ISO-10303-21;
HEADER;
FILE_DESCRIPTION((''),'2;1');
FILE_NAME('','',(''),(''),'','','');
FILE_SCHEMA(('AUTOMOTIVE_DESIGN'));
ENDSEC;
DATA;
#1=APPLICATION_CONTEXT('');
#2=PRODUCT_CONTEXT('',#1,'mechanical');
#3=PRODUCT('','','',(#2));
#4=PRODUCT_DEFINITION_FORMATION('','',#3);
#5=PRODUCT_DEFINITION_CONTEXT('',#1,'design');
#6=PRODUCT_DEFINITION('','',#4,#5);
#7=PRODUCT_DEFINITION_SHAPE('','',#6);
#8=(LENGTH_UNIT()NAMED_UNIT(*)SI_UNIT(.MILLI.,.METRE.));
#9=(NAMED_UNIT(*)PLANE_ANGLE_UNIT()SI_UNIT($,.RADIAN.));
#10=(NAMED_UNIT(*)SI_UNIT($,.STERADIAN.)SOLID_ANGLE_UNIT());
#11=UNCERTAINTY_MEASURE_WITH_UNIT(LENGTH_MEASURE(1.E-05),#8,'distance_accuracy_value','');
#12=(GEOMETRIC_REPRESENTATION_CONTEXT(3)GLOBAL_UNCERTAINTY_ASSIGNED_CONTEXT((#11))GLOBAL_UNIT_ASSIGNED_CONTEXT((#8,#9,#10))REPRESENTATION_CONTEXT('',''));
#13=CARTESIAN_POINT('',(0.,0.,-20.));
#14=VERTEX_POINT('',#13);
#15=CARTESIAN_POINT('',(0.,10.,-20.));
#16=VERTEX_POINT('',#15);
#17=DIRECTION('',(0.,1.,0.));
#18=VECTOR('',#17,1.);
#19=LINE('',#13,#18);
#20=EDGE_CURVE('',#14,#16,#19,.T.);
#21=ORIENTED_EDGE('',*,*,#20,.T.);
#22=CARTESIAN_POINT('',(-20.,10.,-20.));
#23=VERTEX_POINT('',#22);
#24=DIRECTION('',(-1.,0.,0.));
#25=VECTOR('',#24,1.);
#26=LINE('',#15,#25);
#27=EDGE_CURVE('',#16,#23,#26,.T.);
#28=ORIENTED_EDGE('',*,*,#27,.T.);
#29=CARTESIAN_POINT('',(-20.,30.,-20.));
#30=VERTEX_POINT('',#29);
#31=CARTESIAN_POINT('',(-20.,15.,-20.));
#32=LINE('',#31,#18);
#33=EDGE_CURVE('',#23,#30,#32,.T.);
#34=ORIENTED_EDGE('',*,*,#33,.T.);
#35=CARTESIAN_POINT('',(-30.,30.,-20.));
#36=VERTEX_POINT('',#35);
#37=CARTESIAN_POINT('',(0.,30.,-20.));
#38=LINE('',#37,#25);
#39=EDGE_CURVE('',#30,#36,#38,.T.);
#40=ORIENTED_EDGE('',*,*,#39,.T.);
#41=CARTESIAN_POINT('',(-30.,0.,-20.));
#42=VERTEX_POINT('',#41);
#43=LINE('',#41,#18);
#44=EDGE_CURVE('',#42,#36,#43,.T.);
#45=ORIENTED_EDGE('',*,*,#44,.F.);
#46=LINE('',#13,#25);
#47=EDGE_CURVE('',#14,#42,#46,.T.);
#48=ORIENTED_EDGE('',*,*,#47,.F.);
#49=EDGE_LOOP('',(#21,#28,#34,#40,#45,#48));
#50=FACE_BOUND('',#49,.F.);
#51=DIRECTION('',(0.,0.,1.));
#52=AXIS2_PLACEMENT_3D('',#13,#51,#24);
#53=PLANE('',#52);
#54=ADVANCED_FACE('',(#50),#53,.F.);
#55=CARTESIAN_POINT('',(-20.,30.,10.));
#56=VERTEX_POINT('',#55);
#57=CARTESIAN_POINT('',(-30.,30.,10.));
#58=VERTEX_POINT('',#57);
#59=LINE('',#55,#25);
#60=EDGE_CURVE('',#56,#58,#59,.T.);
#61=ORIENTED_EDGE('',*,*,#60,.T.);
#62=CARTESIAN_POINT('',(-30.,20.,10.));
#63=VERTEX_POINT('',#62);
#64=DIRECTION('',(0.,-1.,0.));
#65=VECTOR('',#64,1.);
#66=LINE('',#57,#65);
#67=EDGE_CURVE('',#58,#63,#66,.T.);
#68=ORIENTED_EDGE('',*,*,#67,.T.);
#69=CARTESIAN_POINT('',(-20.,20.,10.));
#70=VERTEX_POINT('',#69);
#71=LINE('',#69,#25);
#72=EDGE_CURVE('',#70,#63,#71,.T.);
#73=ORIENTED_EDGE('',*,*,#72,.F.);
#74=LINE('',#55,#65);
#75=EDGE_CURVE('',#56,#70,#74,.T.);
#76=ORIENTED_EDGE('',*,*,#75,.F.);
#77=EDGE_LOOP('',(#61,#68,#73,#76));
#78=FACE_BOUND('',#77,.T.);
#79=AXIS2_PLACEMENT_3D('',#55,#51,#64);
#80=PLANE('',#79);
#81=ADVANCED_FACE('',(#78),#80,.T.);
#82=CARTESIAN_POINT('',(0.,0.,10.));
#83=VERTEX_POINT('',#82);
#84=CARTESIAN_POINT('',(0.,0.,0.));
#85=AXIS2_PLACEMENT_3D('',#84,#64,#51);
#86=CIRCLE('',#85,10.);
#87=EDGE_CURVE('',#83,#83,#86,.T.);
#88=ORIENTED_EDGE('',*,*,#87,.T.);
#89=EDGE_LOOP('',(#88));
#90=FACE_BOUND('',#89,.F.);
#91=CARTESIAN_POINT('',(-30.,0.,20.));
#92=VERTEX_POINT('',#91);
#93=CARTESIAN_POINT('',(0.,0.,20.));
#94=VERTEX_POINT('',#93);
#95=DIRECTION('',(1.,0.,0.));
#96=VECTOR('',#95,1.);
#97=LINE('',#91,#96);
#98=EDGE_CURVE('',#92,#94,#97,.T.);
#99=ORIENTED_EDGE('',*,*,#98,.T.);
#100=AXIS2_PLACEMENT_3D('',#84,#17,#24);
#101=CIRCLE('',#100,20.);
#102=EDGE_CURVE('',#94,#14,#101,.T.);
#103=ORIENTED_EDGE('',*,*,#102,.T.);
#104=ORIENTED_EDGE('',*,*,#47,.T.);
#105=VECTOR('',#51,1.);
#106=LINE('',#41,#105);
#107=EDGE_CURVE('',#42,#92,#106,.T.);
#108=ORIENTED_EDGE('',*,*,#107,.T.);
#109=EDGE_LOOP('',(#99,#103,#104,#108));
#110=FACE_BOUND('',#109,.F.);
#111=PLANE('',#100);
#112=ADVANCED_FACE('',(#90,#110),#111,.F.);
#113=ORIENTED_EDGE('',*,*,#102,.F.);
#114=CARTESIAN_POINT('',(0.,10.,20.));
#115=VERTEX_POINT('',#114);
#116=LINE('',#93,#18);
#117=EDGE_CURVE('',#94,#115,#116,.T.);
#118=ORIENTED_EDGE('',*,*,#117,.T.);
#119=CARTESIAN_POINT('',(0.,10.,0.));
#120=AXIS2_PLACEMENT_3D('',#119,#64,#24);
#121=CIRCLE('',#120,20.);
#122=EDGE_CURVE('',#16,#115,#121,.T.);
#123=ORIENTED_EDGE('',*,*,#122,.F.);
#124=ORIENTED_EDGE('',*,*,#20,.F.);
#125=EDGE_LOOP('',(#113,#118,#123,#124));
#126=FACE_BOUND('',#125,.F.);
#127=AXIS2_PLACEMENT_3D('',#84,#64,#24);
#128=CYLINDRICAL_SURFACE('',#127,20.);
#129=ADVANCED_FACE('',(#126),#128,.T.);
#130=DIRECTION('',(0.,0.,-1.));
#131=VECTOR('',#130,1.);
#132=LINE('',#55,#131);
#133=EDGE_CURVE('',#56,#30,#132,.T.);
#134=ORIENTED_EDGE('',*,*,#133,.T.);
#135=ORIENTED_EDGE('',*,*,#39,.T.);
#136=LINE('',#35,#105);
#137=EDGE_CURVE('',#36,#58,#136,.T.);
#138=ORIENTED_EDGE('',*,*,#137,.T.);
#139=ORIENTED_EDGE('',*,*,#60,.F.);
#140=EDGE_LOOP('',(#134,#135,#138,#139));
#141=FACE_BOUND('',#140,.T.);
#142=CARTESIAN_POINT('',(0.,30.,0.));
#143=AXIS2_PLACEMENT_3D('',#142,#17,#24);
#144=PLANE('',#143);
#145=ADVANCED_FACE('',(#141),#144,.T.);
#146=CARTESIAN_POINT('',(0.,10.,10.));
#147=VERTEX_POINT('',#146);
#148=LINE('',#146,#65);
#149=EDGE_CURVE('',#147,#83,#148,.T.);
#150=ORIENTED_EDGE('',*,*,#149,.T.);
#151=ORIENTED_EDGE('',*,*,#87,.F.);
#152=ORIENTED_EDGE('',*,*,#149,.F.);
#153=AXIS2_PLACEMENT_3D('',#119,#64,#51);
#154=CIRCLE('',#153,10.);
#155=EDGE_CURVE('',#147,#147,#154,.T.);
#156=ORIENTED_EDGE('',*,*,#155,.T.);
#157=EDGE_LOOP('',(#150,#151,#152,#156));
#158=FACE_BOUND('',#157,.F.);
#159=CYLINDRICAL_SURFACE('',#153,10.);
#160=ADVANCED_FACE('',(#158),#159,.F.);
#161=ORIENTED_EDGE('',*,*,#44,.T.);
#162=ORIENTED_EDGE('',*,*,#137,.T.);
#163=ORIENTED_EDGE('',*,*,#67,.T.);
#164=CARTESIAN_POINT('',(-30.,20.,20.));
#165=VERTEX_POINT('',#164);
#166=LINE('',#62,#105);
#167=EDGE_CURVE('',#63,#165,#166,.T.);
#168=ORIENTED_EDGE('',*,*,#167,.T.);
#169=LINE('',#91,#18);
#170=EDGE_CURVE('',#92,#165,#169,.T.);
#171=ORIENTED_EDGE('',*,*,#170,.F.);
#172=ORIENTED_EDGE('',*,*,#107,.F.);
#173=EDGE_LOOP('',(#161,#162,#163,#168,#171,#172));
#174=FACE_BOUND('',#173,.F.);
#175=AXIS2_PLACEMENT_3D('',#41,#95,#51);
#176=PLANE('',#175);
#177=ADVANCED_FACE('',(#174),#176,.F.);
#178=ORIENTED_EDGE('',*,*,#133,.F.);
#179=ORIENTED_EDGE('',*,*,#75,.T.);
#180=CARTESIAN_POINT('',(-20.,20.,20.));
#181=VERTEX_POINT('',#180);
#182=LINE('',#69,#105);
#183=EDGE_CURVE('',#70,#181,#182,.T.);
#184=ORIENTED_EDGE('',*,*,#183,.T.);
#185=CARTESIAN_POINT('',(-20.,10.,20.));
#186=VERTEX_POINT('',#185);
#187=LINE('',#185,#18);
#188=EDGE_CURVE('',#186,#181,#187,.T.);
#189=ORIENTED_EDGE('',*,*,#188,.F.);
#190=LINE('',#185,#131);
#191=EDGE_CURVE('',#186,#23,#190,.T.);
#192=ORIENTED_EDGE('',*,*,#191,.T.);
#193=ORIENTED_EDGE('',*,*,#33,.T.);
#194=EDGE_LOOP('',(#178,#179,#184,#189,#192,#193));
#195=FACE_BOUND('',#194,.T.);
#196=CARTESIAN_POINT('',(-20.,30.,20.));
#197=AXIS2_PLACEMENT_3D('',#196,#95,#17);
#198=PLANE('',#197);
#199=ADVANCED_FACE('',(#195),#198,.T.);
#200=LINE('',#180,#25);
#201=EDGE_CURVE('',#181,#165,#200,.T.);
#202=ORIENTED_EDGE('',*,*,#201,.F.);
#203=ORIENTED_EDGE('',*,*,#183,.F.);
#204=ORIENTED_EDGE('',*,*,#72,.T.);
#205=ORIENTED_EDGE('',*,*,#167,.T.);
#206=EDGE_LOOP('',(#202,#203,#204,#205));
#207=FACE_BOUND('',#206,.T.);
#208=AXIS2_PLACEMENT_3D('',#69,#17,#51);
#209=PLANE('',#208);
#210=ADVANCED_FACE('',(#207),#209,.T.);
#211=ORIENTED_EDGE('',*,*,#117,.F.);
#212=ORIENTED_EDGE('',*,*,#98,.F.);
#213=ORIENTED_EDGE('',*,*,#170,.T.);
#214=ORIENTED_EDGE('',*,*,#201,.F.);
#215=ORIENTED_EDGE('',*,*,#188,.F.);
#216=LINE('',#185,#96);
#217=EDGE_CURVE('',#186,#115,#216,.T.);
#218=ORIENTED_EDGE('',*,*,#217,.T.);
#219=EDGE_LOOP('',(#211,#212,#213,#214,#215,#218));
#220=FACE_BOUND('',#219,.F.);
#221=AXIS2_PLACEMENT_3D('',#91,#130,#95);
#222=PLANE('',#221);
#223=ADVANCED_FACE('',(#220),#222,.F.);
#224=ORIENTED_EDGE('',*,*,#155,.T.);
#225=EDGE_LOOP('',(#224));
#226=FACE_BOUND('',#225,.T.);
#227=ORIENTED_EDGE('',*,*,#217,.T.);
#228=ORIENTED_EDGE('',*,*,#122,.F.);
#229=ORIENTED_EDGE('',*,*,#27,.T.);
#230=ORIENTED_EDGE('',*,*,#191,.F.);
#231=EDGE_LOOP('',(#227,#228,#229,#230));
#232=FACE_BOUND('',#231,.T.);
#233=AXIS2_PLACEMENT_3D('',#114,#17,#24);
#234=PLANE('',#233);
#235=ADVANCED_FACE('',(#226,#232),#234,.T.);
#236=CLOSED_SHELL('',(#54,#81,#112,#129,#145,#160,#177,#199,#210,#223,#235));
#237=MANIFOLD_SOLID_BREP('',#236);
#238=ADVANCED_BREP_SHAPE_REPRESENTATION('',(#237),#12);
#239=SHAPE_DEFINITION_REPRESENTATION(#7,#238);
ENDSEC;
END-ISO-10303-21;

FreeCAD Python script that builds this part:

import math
import FreeCAD as App
import Part
import Sketcher
Q = App.Units.Quantity


def add_polygon(sketch, points):
    """Adds a closed chain of lines whose ends are joined by coincident constraints."""
    first, n = sketch.GeometryCount, len(points)
    for a, b in zip(points, points[1:] + points[:1]):
        sketch.addGeometry(Part.LineSegment(App.Vector(*a, 0), App.Vector(*b, 0)), False)
    for i in range(n):
        sketch.addConstraint(Sketcher.Constraint("Coincident", first + i, 2, first + (i + 1) % n, 1))

doc = App.newDocument("Part")
body = doc.addObject("PartDesign::Body", "Body")

sketch1 = body.newObject("Sketcher::SketchObject", "Sketch")
sketch1.AttachmentSupport = (doc.getObject("XZ_Plane"), [""])
sketch1.MapMode = "FlatFace"
sketch1.addGeometry(Part.LineSegment(App.Vector(0, -20, 0), App.Vector(-30, -20, 0)), False)
sketch1.addGeometry(Part.LineSegment(App.Vector(-30, -20, 0), App.Vector(-30, 20, 0)), False)
sketch1.addGeometry(Part.LineSegment(App.Vector(-30, 20, 0), App.Vector(0, 20, 0)), False)
sketch1.addGeometry(Part.ArcOfCircle(Part.Circle(App.Vector(0, 0, 0), App.Vector(0, 0, 1), 20), math.radians(-90), math.radians(90)), False)
sketch1.addConstraint(Sketcher.Constraint("Coincident", 0, 2, 1, 1))
sketch1.addConstraint(Sketcher.Constraint("Coincident", 1, 2, 2, 1))
sketch1.addConstraint(Sketcher.Constraint("Tangent", 2, 2, 3, 2))
sketch1.addConstraint(Sketcher.Constraint("Tangent", 3, 1, 0, 1))
sketch1.addConstraint(Sketcher.Constraint("Horizontal", 0))
sketch1.addConstraint(Sketcher.Constraint("Vertical", 1))
sketch1.addConstraint(Sketcher.Constraint("Horizontal", 2))
sketch1.addConstraint(Sketcher.Constraint("Coincident", 3, 3, -1, 1))
sketch1.addConstraint(Sketcher.Constraint("Radius", 3, Q("20 mm")))
sketch1.addConstraint(Sketcher.Constraint("DistanceX", 0, 2, 0, 1, Q("30 mm")))
pad1 = body.newObject("PartDesign::Pad", "Pad")
pad1.Profile = sketch1
pad1.Length = 30
pad1.Reversed = True

sketch2 = body.newObject("Sketcher::SketchObject", "Sketch001")
sketch2.AttachmentSupport = (doc.getObject("XY_Plane"), [""])
sketch2.MapMode = "FlatFace"
sketch2.AttachmentOffset = App.Placement(App.Vector(0, 0, 20), App.Rotation())
add_polygon(sketch2, [(-20, 37.5679), (-20, 10), (36.1175, 10), (36.1175, 37.5679)])
sketch2.addConstraint(Sketcher.Constraint("Vertical", 0))
sketch2.addConstraint(Sketcher.Constraint("Horizontal", 1))
sketch2.addConstraint(Sketcher.Constraint("Vertical", 2))
sketch2.addConstraint(Sketcher.Constraint("Horizontal", 3))
sketch2.addConstraint(Sketcher.Constraint("DistanceY", -1, 1, 0, 2, Q("10 mm")))
sketch2.addConstraint(Sketcher.Constraint("DistanceX", 0, 2, -1, 1, Q("20 mm")))
sketch2.addConstraint(Sketcher.Constraint("DistanceY", 0, 2, 0, 1, Q("27.568 mm")))
sketch2.addConstraint(Sketcher.Constraint("DistanceX", 1, 1, 1, 2, Q("56.1175 mm")))
pocket1 = body.newObject("PartDesign::Pocket", "Pocket")
pocket1.Profile = sketch2
pocket1.Length = 48.25

sketch3 = body.newObject("Sketcher::SketchObject", "Sketch002")
sketch3.AttachmentSupport = (doc.getObject("YZ_Plane"), [""])
sketch3.MapMode = "FlatFace"
sketch3.AttachmentOffset = App.Placement(App.Vector(0, 0, -20), App.Rotation())
add_polygon(sketch3, [(30, 20), (20, 20), (20, 10), (30, 10)])
sketch3.addConstraint(Sketcher.Constraint("Horizontal", 0))
sketch3.addConstraint(Sketcher.Constraint("Vertical", 1))
sketch3.addConstraint(Sketcher.Constraint("Horizontal", 2))
sketch3.addConstraint(Sketcher.Constraint("Vertical", 3))
sketch3.addConstraint(Sketcher.Constraint("Equal", 2, 1))
sketch3.addConstraint(Sketcher.Constraint("DistanceX", 0, 2, 0, 1, Q("10 mm")))
sketch3.addConstraint(Sketcher.Constraint("DistanceY", -1, 1, 1, 2, Q("10 mm")))
sketch3.addConstraint(Sketcher.Constraint("DistanceX", -1, 1, 0, 2, Q("20 mm")))
pocket2 = body.newObject("PartDesign::Pocket", "Pocket001")
pocket2.Profile = sketch3
pocket2.Length = 10

sketch4 = body.newObject("Sketcher::SketchObject", "Sketch003")
sketch4.AttachmentSupport = (doc.getObject("XZ_Plane"), [""])
sketch4.MapMode = "FlatFace"
sketch4.AttachmentOffset = App.Placement(App.Vector(0, 0, -10), App.Rotation())
sketch4.addGeometry(Part.Circle(App.Vector(0, 0, 0), App.Vector(0, 0, 1), 10), False)
sketch4.addConstraint(Sketcher.Constraint("Coincident", 0, 3, -1, 1))
sketch4.addConstraint(Sketcher.Constraint("Diameter", 0, Q("20 mm")))
doc.recompute()
hole = body.newObject("PartDesign::Hole", "Hole")
hole.Profile = sketch4
hole.ThreadType = "None"
hole.Diameter = 20
hole.DepthType = "ThroughAll"
hole.Reversed = True

doc.recompute()
